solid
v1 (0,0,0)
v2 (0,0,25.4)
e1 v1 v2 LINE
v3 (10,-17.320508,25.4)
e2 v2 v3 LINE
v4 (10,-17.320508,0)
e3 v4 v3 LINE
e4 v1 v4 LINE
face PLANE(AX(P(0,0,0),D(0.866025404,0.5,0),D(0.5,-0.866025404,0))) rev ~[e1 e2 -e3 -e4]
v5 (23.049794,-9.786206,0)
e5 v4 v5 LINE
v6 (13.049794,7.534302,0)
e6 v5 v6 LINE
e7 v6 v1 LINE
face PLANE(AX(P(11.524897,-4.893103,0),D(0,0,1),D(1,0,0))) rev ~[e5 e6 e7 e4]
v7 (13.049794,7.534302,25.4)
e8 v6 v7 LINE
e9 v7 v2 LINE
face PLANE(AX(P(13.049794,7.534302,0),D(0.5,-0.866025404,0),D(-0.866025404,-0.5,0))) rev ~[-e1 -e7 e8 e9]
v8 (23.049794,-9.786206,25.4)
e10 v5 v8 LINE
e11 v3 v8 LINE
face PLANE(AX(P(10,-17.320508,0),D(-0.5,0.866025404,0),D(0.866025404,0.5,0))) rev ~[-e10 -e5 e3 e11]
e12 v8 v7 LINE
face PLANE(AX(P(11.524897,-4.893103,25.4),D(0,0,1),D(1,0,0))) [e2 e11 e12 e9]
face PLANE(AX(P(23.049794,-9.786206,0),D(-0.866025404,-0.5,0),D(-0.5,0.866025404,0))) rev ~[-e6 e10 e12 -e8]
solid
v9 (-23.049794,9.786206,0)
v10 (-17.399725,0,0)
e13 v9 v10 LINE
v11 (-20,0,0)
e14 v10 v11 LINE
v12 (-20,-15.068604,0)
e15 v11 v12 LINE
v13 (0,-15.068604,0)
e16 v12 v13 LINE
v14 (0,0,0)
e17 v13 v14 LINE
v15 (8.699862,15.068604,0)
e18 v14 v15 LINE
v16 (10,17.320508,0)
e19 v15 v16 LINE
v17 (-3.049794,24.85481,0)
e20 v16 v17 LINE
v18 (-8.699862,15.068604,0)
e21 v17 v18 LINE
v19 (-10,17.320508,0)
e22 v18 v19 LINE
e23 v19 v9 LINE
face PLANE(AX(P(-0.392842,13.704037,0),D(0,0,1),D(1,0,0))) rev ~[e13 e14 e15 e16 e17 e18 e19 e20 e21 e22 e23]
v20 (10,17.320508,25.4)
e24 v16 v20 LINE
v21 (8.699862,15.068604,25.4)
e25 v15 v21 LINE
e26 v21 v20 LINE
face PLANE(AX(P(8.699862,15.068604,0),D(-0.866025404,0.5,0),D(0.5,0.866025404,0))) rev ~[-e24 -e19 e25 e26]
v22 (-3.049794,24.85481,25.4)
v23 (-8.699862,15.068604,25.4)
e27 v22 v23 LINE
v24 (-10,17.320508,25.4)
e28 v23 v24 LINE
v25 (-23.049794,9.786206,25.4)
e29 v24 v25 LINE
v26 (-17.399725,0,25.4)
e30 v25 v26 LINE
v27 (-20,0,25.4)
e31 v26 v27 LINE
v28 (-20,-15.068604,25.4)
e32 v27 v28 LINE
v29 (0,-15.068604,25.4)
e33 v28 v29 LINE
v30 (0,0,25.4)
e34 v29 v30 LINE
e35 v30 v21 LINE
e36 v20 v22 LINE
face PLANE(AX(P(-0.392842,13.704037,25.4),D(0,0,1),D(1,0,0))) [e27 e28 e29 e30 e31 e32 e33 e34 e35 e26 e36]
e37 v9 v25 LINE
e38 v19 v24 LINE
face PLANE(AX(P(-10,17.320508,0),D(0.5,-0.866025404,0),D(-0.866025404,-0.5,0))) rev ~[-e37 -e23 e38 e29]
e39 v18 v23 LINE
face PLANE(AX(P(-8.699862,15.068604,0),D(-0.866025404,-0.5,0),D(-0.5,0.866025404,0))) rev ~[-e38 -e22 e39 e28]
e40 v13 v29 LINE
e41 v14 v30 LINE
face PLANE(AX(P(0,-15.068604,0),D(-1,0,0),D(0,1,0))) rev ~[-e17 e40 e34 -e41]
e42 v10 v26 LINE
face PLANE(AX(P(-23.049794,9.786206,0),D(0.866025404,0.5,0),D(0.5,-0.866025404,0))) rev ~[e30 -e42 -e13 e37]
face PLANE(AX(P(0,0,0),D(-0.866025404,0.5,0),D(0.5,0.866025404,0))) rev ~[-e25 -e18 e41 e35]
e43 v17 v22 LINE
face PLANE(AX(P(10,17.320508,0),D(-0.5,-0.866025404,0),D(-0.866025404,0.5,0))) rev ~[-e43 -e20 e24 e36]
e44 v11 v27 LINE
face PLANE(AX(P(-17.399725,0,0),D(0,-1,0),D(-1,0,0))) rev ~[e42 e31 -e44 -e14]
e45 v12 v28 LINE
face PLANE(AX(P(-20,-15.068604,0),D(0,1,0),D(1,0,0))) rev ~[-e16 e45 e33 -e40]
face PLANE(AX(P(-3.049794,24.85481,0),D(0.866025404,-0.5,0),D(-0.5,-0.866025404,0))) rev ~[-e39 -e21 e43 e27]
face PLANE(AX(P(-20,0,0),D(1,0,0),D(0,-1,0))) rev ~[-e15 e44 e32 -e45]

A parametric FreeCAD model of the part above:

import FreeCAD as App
import Part
import Sketcher
from FreeCAD import Vector
Q = App.Units.Quantity

doc = App.newDocument("Part")
params = doc.addObject("Spreadsheet::Sheet", "Params")
for row, (alias, value) in enumerate([
    ("sketch1_width", "20 mm"),
    ("pad1_length", "25.4 mm"),
    ("sketch2_length", "20 mm"),
    ("pad2_length", "25.4 mm"),
], start=1):
    params.set(f"A{row}", alias)
    params.set(f"B{row}", "=" + value)
    params.setAlias(f"B{row}", alias)

body = doc.addObject("PartDesign::Body", "Body")

sketch1 = body.newObject("Sketcher::SketchObject", "Sketch")
sketch1.AttachmentSupport = (doc.getObject("XY_Plane"), [""])
sketch1.MapMode = "FlatFace"
sketch1.addGeometry([
    Part.LineSegment(Vector(8.699862, 15.068604, 0), Vector(10, 17.320508, 0)),
    Part.LineSegment(Vector(10, 17.320508, 0), Vector(-3.049794, 24.85481, 0)),
    Part.LineSegment(Vector(-3.049794, 24.85481, 0), Vector(-8.699862, 15.068604, 0)),
    Part.LineSegment(Vector(-8.699862, 15.068604, 0), Vector(-10, 17.320508, 0)),
    Part.LineSegment(Vector(-10, 17.320508, 0), Vector(-23.049794, 9.786206, 0)),
    Part.LineSegment(Vector(-23.049794, 9.786206, 0), Vector(-17.399725, 0, 0)),
    Part.LineSegment(Vector(-17.399725, 0, 0), Vector(-20, 0, 0)),
    Part.LineSegment(Vector(-20, 0, 0), Vector(-20, -15.068604, 0)),
    Part.LineSegment(Vector(-20, -15.068604, 0), Vector(0, -15.068604, 0)),
    Part.LineSegment(Vector(0, -15.068604, 0), Vector(0, 0, 0)),
    Part.LineSegment(Vector(0, 0, 0), Vector(8.699862, 15.068604, 0)),
], False)
sketch1.addConstraint([
    Sketcher.Constraint("Coincident", 0, 2, 1, 1),
    Sketcher.Constraint("Coincident", 1, 2, 2, 1),
    Sketcher.Constraint("Coincident", 2, 2, 3, 1),
    Sketcher.Constraint("Coincident", 3, 2, 4, 1),
    Sketcher.Constraint("Coincident", 4, 2, 5, 1),
    Sketcher.Constraint("Coincident", 5, 2, 6, 1),
    Sketcher.Constraint("Coincident", 6, 2, 7, 1),
    Sketcher.Constraint("Coincident", 7, 2, 8, 1),
    Sketcher.Constraint("Coincident", 8, 2, 9, 1),
    Sketcher.Constraint("Coincident", 9, 2, 10, 1),
    Sketcher.Constraint("Coincident", 10, 2, 0, 1),
    Sketcher.Constraint("Horizontal", 6),
    Sketcher.Constraint("Vertical", 7),
    Sketcher.Constraint("Horizontal", 8),
    Sketcher.Constraint("Vertical", 9),
    Sketcher.Constraint("Coincident", 9, 2, -1, 1),
    Sketcher.Constraint("Symmetric", 0, 2, 3, 2, -2),
    Sketcher.Constraint("Symmetric", 2, 2, 10, 2, -2),
    Sketcher.Constraint("PointOnObject", 5, 2, -1),
    Sketcher.Constraint("Perpendicular", 0, 1),
    Sketcher.Constraint("Perpendicular", 1, 2),
    Sketcher.Constraint("Perpendicular", 3, 4),
    Sketcher.Constraint("Perpendicular", 4, 5),
    Sketcher.Constraint("Parallel", 2, 10),
    Sketcher.Constraint("Equal", 1, 4),
    Sketcher.Constraint("Equal", 2, 5),
    Sketcher.Constraint("DistanceX", 8, 1, 8, 2, 20.0),
    Sketcher.Constraint("DistanceX", -1, 1, 0, 2, 10.0),
    Sketcher.Constraint("DistanceY", 0, 2, 1, 2, 7.534302),
    Sketcher.Constraint("DistanceY", 7, 2, 7, 1, 15.068604),
])
sketch1.setExpression("Constraints[26]", "Params.sketch1_width")
pad1 = body.newObject("PartDesign::Pad", "Pad")
pad1.Profile = sketch1
pad1.setExpression("Length", "Params.pad1_length")
body2 = doc.addObject("PartDesign::Body", "Body001")

sketch2 = body2.newObject("Sketcher::SketchObject", "Sketch001")
sketch2.AttachmentSupport = (doc.getObject("XY_Plane001"), [""])
sketch2.MapMode = "FlatFace"
sketch2.addGeometry([
    Part.LineSegment(Vector(13.049794, 7.534302, 0), Vector(0, 0, 0)),
    Part.LineSegment(Vector(0, 0, 0), Vector(10, -17.320508, 0)),
    Part.LineSegment(Vector(10, -17.320508, 0), Vector(23.049794, -9.786206, 0)),
    Part.LineSegment(Vector(23.049794, -9.786206, 0), Vector(13.049794, 7.534302, 0)),
], False)
sketch2.addConstraint([
    Sketcher.Constraint("Coincident", 0, 2, 1, 1),
    Sketcher.Constraint("Coincident", 1, 2, 2, 1),
    Sketcher.Constraint("Coincident", 2, 2, 3, 1),
    Sketcher.Constraint("Coincident", 3, 2, 0, 1),
    Sketcher.Constraint("Coincident", 0, 2, -1, 1),
    Sketcher.Constraint("Perpendicular", 0, 1),
    Sketcher.Constraint("Perpendicular", 1, 2),
    Sketcher.Constraint("Perpendicular", 2, 3),
    Sketcher.Constraint("Angle", 0, Q("-150 deg")),
    Sketcher.Constraint("Distance", 1, 20.0),
    Sketcher.Constraint("DistanceY", -1, 1, 3, 2, 7.534302),
])
sketch2.setExpression("Constraints[9]", "Params.sketch2_length")
pad2 = body2.newObject("PartDesign::Pad", "Pad001")
pad2.Profile = sketch2
pad2.setExpression("Length", "Params.pad2_length")

doc.recompute()
